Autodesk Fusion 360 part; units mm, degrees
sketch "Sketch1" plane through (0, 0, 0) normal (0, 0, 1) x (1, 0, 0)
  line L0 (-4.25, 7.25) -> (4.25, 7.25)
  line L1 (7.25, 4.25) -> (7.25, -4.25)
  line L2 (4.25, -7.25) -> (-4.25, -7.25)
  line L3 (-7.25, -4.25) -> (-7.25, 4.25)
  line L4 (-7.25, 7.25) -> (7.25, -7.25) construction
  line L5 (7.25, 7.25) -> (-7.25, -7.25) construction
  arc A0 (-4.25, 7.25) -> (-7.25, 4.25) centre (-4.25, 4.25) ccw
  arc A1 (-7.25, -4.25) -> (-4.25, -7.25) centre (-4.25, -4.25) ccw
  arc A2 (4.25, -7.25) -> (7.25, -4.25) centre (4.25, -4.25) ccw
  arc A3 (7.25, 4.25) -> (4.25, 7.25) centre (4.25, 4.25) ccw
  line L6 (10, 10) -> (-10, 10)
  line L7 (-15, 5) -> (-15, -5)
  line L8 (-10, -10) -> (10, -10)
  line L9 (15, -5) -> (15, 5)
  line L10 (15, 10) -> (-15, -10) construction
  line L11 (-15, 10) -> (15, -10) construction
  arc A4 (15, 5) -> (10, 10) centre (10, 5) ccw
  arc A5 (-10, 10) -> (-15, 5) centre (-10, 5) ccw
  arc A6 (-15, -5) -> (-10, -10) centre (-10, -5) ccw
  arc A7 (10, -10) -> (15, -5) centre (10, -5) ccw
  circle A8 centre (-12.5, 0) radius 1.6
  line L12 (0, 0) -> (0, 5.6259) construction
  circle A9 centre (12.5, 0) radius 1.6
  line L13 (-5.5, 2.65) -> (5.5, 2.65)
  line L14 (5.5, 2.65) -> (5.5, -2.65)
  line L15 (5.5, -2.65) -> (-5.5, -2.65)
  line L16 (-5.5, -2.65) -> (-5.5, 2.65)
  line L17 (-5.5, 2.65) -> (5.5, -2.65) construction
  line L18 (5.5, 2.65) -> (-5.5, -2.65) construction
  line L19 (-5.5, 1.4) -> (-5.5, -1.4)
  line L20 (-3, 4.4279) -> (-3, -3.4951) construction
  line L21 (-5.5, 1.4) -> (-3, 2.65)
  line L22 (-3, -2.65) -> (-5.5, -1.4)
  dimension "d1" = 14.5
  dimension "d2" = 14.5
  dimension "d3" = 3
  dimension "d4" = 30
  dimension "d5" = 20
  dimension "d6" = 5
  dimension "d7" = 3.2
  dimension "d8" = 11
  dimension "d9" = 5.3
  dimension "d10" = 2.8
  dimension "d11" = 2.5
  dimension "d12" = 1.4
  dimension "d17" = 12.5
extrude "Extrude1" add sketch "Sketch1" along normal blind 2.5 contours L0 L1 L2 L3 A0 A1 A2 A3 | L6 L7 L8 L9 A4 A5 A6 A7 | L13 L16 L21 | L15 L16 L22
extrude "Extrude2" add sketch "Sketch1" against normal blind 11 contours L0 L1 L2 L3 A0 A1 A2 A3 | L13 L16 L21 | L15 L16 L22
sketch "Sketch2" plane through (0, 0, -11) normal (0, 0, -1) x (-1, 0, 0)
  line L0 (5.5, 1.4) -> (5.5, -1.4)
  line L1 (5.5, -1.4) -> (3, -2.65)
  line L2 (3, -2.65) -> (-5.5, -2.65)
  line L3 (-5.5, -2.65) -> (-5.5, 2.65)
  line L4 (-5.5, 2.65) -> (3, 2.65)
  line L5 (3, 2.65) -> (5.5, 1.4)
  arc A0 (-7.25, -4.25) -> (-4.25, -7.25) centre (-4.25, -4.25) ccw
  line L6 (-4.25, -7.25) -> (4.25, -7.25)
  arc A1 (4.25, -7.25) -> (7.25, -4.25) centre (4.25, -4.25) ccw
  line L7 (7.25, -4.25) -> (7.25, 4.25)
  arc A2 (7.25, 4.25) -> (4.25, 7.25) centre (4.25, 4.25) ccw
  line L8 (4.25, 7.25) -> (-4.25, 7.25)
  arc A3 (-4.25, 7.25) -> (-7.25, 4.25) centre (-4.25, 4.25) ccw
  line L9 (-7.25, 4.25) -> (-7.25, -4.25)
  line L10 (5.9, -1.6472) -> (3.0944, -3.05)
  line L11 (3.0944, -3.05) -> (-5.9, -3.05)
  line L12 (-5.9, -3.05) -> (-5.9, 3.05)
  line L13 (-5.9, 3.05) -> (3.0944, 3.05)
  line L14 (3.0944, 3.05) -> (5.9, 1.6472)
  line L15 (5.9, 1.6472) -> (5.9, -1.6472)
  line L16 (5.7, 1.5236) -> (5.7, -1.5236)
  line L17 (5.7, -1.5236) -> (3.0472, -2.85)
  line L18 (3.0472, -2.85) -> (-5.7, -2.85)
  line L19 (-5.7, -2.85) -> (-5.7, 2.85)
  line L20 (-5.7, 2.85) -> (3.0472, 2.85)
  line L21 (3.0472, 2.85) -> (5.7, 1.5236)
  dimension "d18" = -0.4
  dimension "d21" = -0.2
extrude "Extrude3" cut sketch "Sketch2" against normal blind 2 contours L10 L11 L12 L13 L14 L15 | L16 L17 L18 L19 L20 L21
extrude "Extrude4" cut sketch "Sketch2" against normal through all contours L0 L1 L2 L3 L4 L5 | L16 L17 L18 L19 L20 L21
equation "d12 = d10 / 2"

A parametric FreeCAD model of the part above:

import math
import FreeCAD as App
import Part
import Sketcher

V = App.Vector
Q = App.Units.Quantity

doc = App.newDocument("Part")
params = doc.addObject("Spreadsheet::Sheet", "Params")
for row, (alias, value) in enumerate([
    ("sketch1_radius", "5 mm"),
    ("sketch1_diameter", "3.2 mm"),
    ("sketch1_width", "20 mm"),
    ("sketch1_height", "2.8 mm"),
    ("sketch1_height2", "5.3 mm"),
    ("pad1_length", "2.5 mm"),
    ("sketch2_radius", "3 mm"),
    ("sketch2_height", "2.8 mm"),
    ("sketch2_height2", "5.3 mm"),
    ("sketch2_width", "8.5 mm"),
    ("pad2_length", "11 mm"),
    ("sketch3_width", "8.5 mm"),
    ("sketch3_height", "6.1 mm"),
    ("sketch3_height2", "2.8 mm"),
    ("pocket1_length", "2 mm"),
    ("sketch4_height", "5.7 mm"),
], start=1):
    params.set(f"A{row}", alias)
    params.set(f"B{row}", "=" + value)
    params.setAlias(f"B{row}", alias)

body = doc.addObject("PartDesign::Body", "Body")

sketch1 = doc.addObject("Sketcher::SketchObject", "Sketch")
body.addObject(sketch1)
sketch1.AttachmentSupport = (doc.XY_Plane, [""])
sketch1.MapMode = "FlatFace"
sketch1.addGeometry([
    Part.ArcOfCircle(Part.Circle(V(10, 5, 0), V(0, 0, 1), 5), math.radians(0), math.radians(90)),
    Part.LineSegment(V(10, 10, 0), V(-10, 10, 0)),
    Part.ArcOfCircle(Part.Circle(V(-10, 5, 0), V(0, 0, 1), 5), math.radians(90), math.radians(180)),
    Part.LineSegment(V(-15, 5, 0), V(-15, -5, 0)),
    Part.ArcOfCircle(Part.Circle(V(-10, -5, 0), V(0, 0, 1), 5), math.radians(180), math.radians(270)),
    Part.LineSegment(V(-10, -10, 0), V(10, -10, 0)),
    Part.ArcOfCircle(Part.Circle(V(10, -5, 0), V(0, 0, 1), 5), math.radians(-90), math.radians(0)),
    Part.LineSegment(V(15, -5, 0), V(15, 5, 0)),
    Part.LineSegment(V(-5.5, -1.4, 0), V(-5.5, 1.4, 0)),
    Part.LineSegment(V(-5.5, 1.4, 0), V(-3, 2.6, 0)),
    Part.LineSegment(V(-3, 2.6, 0), V(5.5, 2.6, 0)),
    Part.LineSegment(V(5.5, 2.6, 0), V(5.5, -2.6, 0)),
    Part.LineSegment(V(5.5, -2.6, 0), V(-3, -2.6, 0)),
    Part.LineSegment(V(-3, -2.6, 0), V(-5.5, -1.4, 0)),
    Part.Circle(V(-12.5, 0, 0), V(0, 0, 1), 1.6),
    Part.Circle(V(12.5, 0, 0), V(0, 0, 1), 1.6),
], False)
sketch1.addConstraint([
    Sketcher.Constraint("Tangent", 0, 2, 1, 1),
    Sketcher.Constraint("Tangent", 1, 2, 2, 1),
    Sketcher.Constraint("Tangent", 2, 2, 3, 1),
    Sketcher.Constraint("Tangent", 3, 2, 4, 1),
    Sketcher.Constraint("Tangent", 4, 2, 5, 1),
    Sketcher.Constraint("Tangent", 5, 2, 6, 1),
    Sketcher.Constraint("Tangent", 6, 2, 7, 1),
    Sketcher.Constraint("Tangent", 7, 2, 0, 1),
    Sketcher.Constraint("Coincident", 8, 2, 9, 1),
    Sketcher.Constraint("Coincident", 9, 2, 10, 1),
    Sketcher.Constraint("Coincident", 10, 2, 11, 1),
    Sketcher.Constraint("Coincident", 11, 2, 12, 1),
    Sketcher.Constraint("Coincident", 12, 2, 13, 1),
    Sketcher.Constraint("Coincident", 13, 2, 8, 1),
    Sketcher.Constraint("Horizontal", 1),
    Sketcher.Constraint("Vertical", 3),
    Sketcher.Constraint("Horizontal", 5),
    Sketcher.Constraint("Vertical", 7),
    Sketcher.Constraint("Vertical", 8),
    Sketcher.Constraint("Horizontal", 10),
    Sketcher.Constraint("Vertical", 11),
    Sketcher.Constraint("Horizontal", 12),
    Sketcher.Constraint("Equal", 0, 2),
    Sketcher.Constraint("Equal", 2, 4),
    Sketcher.Constraint("Equal", 4, 6),
    Sketcher.Constraint("Equal", 14, 15),
    Sketcher.Constraint("Symmetric", 0, 3, 4, 3, -1, 1),
    Sketcher.Constraint("Symmetric", 14, 3, 15, 3, -1, 1),
    Sketcher.Constraint("Symmetric", 9, 2, 12, 2, -1),
    Sketcher.Constraint("PointOnObject", 14, 3, -1),
    Sketcher.Constraint("Equal", 9, 13),
    Sketcher.Constraint("Radius", 0, Q("5 mm")),
    Sketcher.Constraint("Diameter", 14, Q("3.2 mm")),
    Sketcher.Constraint("DistanceX", 1, 2, 1, 1, Q("20 mm")),
    Sketcher.Constraint("DistanceY", 8, 1, 8, 2, Q("2.8 mm")),
    Sketcher.Constraint("DistanceY", 11, 2, 11, 1, Q("5.3 mm")),
    Sketcher.Constraint("DistanceY", -1, 1, 0, 3, Q("5 mm")),
    Sketcher.Constraint("DistanceX", 9, 2, -1, 1, Q("3 mm")),
    Sketcher.Constraint("DistanceX", 14, 3, -1, 1, Q("12.5 mm")),
    Sketcher.Constraint("DistanceX", 8, 2, 9, 2, Q("2.5 mm")),
    Sketcher.Constraint("DistanceX", 10, 1, 10, 2, Q("8.5 mm")),
])
sketch1.setExpression("Constraints[31]", "Params.sketch1_radius")
sketch1.setExpression("Constraints[32]", "Params.sketch1_diameter")
sketch1.setExpression("Constraints[33]", "Params.sketch1_width")
sketch1.setExpression("Constraints[34]", "Params.sketch1_height")
sketch1.setExpression("Constraints[35]", "Params.sketch1_height2")
pad1 = doc.addObject("PartDesign::Pad", "Pad")
body.addObject(pad1)
pad1.Profile = sketch1
pad1.setExpression("Length", "Params.pad1_length")

sketch2 = doc.addObject("Sketcher::SketchObject", "Sketch001")
body.addObject(sketch2)
sketch2.AttachmentSupport = (doc.XY_Plane, [""])
sketch2.MapMode = "FlatFace"
sketch2.addGeometry([
    Part.LineSegment(V(4.2, 7.2, 0), V(-4.2, 7.2, 0)),
    Part.ArcOfCircle(Part.Circle(V(-4.2, 4.2, 0), V(0, 0, 1), 3), math.radians(90), math.radians(180)),
    Part.LineSegment(V(-7.2, 4.2, 0), V(-7.2, -4.2, 0)),
    Part.ArcOfCircle(Part.Circle(V(-4.2, -4.2, 0), V(0, 0, 1), 3), math.radians(180), math.radians(270)),
    Part.LineSegment(V(-4.2, -7.2, 0), V(4.2, -7.2, 0)),
    Part.ArcOfCircle(Part.Circle(V(4.2, -4.2, 0), V(0, 0, 1), 3), math.radians(-90), math.radians(0)),
    Part.LineSegment(V(7.2, -4.2, 0), V(7.2, 4.2, 0)),
    Part.ArcOfCircle(Part.Circle(V(4.2, 4.2, 0), V(0, 0, 1), 3), math.radians(0), math.radians(90)),
    Part.LineSegment(V(-5.5, -1.4, 0), V(-5.5, 1.4, 0)),
    Part.LineSegment(V(-5.5, 1.4, 0), V(-3, 2.6, 0)),
    Part.LineSegment(V(-3, 2.6, 0), V(5.5, 2.6, 0)),
    Part.LineSegment(V(5.5, 2.6, 0), V(5.5, -2.6, 0)),
    Part.LineSegment(V(5.5, -2.6, 0), V(-3, -2.6, 0)),
    Part.LineSegment(V(-3, -2.6, 0), V(-5.5, -1.4, 0)),
], False)
sketch2.addConstraint([
    Sketcher.Constraint("Tangent", 0, 2, 1, 1),
    Sketcher.Constraint("Tangent", 1, 2, 2, 1),
    Sketcher.Constraint("Tangent", 2, 2, 3, 1),
    Sketcher.Constraint("Tangent", 3, 2, 4, 1),
    Sketcher.Constraint("Tangent", 4, 2, 5, 1),
    Sketcher.Constraint("Tangent", 5, 2, 6, 1),
    Sketcher.Constraint("Tangent", 6, 2, 7, 1),
    Sketcher.Constraint("Tangent", 7, 2, 0, 1),
    Sketcher.Constraint("Coincident", 8, 2, 9, 1),
    Sketcher.Constraint("Coincident", 9, 2, 10, 1),
    Sketcher.Constraint("Coincident", 10, 2, 11, 1),
    Sketcher.Constraint("Coincident", 11, 2, 12, 1),
    Sketcher.Constraint("Coincident", 12, 2, 13, 1),
    Sketcher.Constraint("Coincident", 13, 2, 8, 1),
    Sketcher.Constraint("Horizontal", 0),
    Sketcher.Constraint("Vertical", 2),
    Sketcher.Constraint("Horizontal", 4),
    Sketcher.Constraint("Vertical", 6),
    Sketcher.Constraint("Vertical", 8),
    Sketcher.Constraint("Horizontal", 10),
    Sketcher.Constraint("Vertical", 11),
    Sketcher.Constraint("Horizontal", 12),
    Sketcher.Constraint("Equal", 1, 3),
    Sketcher.Constraint("Equal", 3, 5),
    Sketcher.Constraint("Equal", 5, 7),
    Sketcher.Constraint("Symmetric", 1, 3, 5, 3, -1, 1),
    Sketcher.Constraint("Symmetric", 9, 2, 12, 2, -1),
    Sketcher.Constraint("Equal", 4, 10),
    Sketcher.Constraint("Equal", 12, 2),
    Sketcher.Constraint("Equal", 9, 13),
    Sketcher.Constraint("Radius", 1, Q("3 mm")),
    Sketcher.Constraint("DistanceY", 8, 1, 8, 2, Q("2.8 mm")),
    Sketcher.Constraint("DistanceY", 11, 2, 11, 1, Q("5.3 mm")),
    Sketcher.Constraint("DistanceX", 9, 2, -1, 1, Q("3 mm")),
    Sketcher.Constraint("DistanceX", 8, 2, 9, 2, Q("2.5 mm")),
    Sketcher.Constraint("DistanceX", 0, 2, 0, 1, Q("8.5 mm")),
])
sketch2.setExpression("Constraints[30]", "Params.sketch2_radius")
sketch2.setExpression("Constraints[31]", "Params.sketch2_height")
sketch2.setExpression("Constraints[32]", "Params.sketch2_height2")
sketch2.setExpression("Constraints[35]", "Params.sketch2_width")
pad2 = doc.addObject("PartDesign::Pad", "Pad001")
body.addObject(pad2)
pad2.Profile = sketch2
pad2.setExpression("Length", "Params.pad2_length")
pad2.Reversed = True

sketch3 = doc.addObject("Sketcher::SketchObject", "Sketch002")
body.addObject(sketch3)
sketch3.AttachmentSupport = (doc.XY_Plane, [""])
sketch3.MapMode = "FlatFace"
sketch3.AttachmentOffset = App.Placement(V(0, 0, -11), App.Rotation())
sketch3.addGeometry([
    Part.LineSegment(V(-3.1, -3, 0), V(-5.9, -1.6, 0)),
    Part.LineSegment(V(-5.9, -1.6, 0), V(-5.9, 1.6, 0)),
    Part.LineSegment(V(-5.9, 1.6, 0), V(-3.1, 3, 0)),
    Part.LineSegment(V(-3.1, 3, 0), V(5.9, 3, 0)),
    Part.LineSegment(V(5.9, 3, 0), V(5.9, -3, 0)),
    Part.LineSegment(V(5.9, -3, 0), V(-3.1, -3, 0)),
    Part.LineSegment(V(-3, 2.6, 0), V(-5.5, 1.4, 0)),
    Part.LineSegment(V(-5.5, 1.4, 0), V(-5.5, -1.4, 0)),
    Part.LineSegment(V(-5.5, -1.4, 0), V(-3, -2.6, 0)),
    Part.LineSegment(V(-3, -2.6, 0), V(5.5, -2.6, 0)),
    Part.LineSegment(V(5.5, -2.6, 0), V(5.5, 2.6, 0)),
    Part.LineSegment(V(5.5, 2.6, 0), V(-3, 2.6, 0)),
], False)
sketch3.addConstraint([
    Sketcher.Constraint("Coincident", 0, 2, 1, 1),
    Sketcher.Constraint("Coincident", 1, 2, 2, 1),
    Sketcher.Constraint("Coincident", 2, 2, 3, 1),
    Sketcher.Constraint("Coincident", 3, 2, 4, 1),
    Sketcher.Constraint("Coincident", 4, 2, 5, 1),
    Sketcher.Constraint("Coincident", 5, 2, 0, 1),
    Sketcher.Constraint("Coincident", 6, 2, 7, 1),
    Sketcher.Constraint("Coincident", 7, 2, 8, 1),
    Sketcher.Constraint("Coincident", 8, 2, 9, 1),
    Sketcher.Constraint("Coincident", 9, 2, 10, 1),
    Sketcher.Constraint("Coincident", 10, 2, 11, 1),
    Sketcher.Constraint("Coincident", 11, 2, 6, 1),
    Sketcher.Constraint("Vertical", 1),
    Sketcher.Constraint("Horizontal", 3),
    Sketcher.Constraint("Vertical", 4),
    Sketcher.Constraint("Horizontal", 5),
    Sketcher.Constraint("Vertical", 7),
    Sketcher.Constraint("Horizontal", 9),
    Sketcher.Constraint("Vertical", 10),
    Sketcher.Constraint("Horizontal", 11),
    Sketcher.Constraint("Symmetric", 2, 2, 5, 2, -1),
    Sketcher.Constraint("Symmetric", 8, 2, 11, 2, -1),
    Sketcher.Constraint("Parallel", 2, 6),
    Sketcher.Constraint("Parallel", 0, 8),
    Sketcher.Constraint("Equal", 0, 2),
    Sketcher.Constraint("DistanceX", 1, 2, 6, 2, Q("0.4 mm")),
    Sketcher.Constraint("DistanceY", 5, 2, 8, 2, Q("0.4 mm")),
    Sketcher.Constraint("DistanceX", 9, 2, 4, 2, Q("0.4 mm")),
    Sketcher.Constraint("DistanceX", 9, 1, 9, 2, Q("8.5 mm")),
    Sketcher.Constraint("DistanceY", 4, 2, 4, 1, Q("6.1 mm")),
    Sketcher.Constraint("DistanceY", 7, 2, 7, 1, Q("2.8 mm")),
    Sketcher.Constraint("DistanceX", 8, 2, -1, 1, Q("3 mm")),
    Sketcher.Constraint("DistanceX", 0, 2, -1, 1, Q("5.9 mm")),
    Sketcher.Constraint("DistanceX", 3, 1, 3, 2, Q("8.9944 mm")),
])
sketch3.setExpression("Constraints[28]", "Params.sketch3_width")
sketch3.setExpression("Constraints[29]", "Params.sketch3_height")
sketch3.setExpression("Constraints[30]", "Params.sketch3_height2")
pocket1 = doc.addObject("PartDesign::Pocket", "Pocket")
body.addObject(pocket1)
pocket1.Profile = sketch3
pocket1.setExpression("Length", "Params.pocket1_length")
pocket1.Reversed = True

sketch4 = doc.addObject("Sketcher::SketchObject", "Sketch003")
body.addObject(sketch4)
sketch4.AttachmentSupport = (doc.XY_Plane, [""])
sketch4.MapMode = "FlatFace"
sketch4.AttachmentOffset = App.Placement(V(0, 0, -11), App.Rotation())
sketch4.addGeometry([
    Part.LineSegment(V(-5.7, -1.5, 0), V(-5.7, 1.5, 0)),
    Part.LineSegment(V(-5.7, 1.5, 0), V(-3, 2.9, 0)),
    Part.LineSegment(V(-3, 2.9, 0), V(5.7, 2.9, 0)),
    Part.LineSegment(V(5.7, 2.9, 0), V(5.7, -2.9, 0)),
    Part.LineSegment(V(5.7, -2.9, 0), V(-3, -2.9, 0)),
    Part.LineSegment(V(-3, -2.9, 0), V(-5.7, -1.5, 0)),
], False)
sketch4.addConstraint([
    Sketcher.Constraint("Coincident", 0, 2, 1, 1),
    Sketcher.Constraint("Coincident", 1, 2, 2, 1),
    Sketcher.Constraint("Coincident", 2, 2, 3, 1),
    Sketcher.Constraint("Coincident", 3, 2, 4, 1),
    Sketcher.Constraint("Coincident", 4, 2, 5, 1),
    Sketcher.Constraint("Coincident", 5, 2, 0, 1),
    Sketcher.Constraint("Vertical", 0),
    Sketcher.Constraint("Horizontal", 2),
    Sketcher.Constraint("Vertical", 3),
    Sketcher.Constraint("Horizontal", 4),
    Sketcher.Constraint("Symmetric", 1, 2, 4, 2, -1),
    Sketcher.Constraint("Equal", 1, 5),
    Sketcher.Constraint("DistanceY", 3, 2, 3, 1, Q("5.7 mm")),
    Sketcher.Constraint("DistanceX", 0, 2, -1, 1, Q("5.7 mm")),
    Sketcher.Constraint("DistanceX", -1, 1, 2, 2, Q("5.7 mm")),
    Sketcher.Constraint("Distance", 1, Q("2.966 mm")),
    Sketcher.Constraint("DistanceX", 2, 1, 2, 2, Q("8.7472 mm")),
])
sketch4.setExpression("Constraints[12]", "Params.sketch4_height")
pocket2 = doc.addObject("PartDesign::Pocket", "Pocket001")
body.addObject(pocket2)
pocket2.Profile = sketch4
pocket2.Type = "ThroughAll"
pocket2.Reversed = True

doc.recompute()
